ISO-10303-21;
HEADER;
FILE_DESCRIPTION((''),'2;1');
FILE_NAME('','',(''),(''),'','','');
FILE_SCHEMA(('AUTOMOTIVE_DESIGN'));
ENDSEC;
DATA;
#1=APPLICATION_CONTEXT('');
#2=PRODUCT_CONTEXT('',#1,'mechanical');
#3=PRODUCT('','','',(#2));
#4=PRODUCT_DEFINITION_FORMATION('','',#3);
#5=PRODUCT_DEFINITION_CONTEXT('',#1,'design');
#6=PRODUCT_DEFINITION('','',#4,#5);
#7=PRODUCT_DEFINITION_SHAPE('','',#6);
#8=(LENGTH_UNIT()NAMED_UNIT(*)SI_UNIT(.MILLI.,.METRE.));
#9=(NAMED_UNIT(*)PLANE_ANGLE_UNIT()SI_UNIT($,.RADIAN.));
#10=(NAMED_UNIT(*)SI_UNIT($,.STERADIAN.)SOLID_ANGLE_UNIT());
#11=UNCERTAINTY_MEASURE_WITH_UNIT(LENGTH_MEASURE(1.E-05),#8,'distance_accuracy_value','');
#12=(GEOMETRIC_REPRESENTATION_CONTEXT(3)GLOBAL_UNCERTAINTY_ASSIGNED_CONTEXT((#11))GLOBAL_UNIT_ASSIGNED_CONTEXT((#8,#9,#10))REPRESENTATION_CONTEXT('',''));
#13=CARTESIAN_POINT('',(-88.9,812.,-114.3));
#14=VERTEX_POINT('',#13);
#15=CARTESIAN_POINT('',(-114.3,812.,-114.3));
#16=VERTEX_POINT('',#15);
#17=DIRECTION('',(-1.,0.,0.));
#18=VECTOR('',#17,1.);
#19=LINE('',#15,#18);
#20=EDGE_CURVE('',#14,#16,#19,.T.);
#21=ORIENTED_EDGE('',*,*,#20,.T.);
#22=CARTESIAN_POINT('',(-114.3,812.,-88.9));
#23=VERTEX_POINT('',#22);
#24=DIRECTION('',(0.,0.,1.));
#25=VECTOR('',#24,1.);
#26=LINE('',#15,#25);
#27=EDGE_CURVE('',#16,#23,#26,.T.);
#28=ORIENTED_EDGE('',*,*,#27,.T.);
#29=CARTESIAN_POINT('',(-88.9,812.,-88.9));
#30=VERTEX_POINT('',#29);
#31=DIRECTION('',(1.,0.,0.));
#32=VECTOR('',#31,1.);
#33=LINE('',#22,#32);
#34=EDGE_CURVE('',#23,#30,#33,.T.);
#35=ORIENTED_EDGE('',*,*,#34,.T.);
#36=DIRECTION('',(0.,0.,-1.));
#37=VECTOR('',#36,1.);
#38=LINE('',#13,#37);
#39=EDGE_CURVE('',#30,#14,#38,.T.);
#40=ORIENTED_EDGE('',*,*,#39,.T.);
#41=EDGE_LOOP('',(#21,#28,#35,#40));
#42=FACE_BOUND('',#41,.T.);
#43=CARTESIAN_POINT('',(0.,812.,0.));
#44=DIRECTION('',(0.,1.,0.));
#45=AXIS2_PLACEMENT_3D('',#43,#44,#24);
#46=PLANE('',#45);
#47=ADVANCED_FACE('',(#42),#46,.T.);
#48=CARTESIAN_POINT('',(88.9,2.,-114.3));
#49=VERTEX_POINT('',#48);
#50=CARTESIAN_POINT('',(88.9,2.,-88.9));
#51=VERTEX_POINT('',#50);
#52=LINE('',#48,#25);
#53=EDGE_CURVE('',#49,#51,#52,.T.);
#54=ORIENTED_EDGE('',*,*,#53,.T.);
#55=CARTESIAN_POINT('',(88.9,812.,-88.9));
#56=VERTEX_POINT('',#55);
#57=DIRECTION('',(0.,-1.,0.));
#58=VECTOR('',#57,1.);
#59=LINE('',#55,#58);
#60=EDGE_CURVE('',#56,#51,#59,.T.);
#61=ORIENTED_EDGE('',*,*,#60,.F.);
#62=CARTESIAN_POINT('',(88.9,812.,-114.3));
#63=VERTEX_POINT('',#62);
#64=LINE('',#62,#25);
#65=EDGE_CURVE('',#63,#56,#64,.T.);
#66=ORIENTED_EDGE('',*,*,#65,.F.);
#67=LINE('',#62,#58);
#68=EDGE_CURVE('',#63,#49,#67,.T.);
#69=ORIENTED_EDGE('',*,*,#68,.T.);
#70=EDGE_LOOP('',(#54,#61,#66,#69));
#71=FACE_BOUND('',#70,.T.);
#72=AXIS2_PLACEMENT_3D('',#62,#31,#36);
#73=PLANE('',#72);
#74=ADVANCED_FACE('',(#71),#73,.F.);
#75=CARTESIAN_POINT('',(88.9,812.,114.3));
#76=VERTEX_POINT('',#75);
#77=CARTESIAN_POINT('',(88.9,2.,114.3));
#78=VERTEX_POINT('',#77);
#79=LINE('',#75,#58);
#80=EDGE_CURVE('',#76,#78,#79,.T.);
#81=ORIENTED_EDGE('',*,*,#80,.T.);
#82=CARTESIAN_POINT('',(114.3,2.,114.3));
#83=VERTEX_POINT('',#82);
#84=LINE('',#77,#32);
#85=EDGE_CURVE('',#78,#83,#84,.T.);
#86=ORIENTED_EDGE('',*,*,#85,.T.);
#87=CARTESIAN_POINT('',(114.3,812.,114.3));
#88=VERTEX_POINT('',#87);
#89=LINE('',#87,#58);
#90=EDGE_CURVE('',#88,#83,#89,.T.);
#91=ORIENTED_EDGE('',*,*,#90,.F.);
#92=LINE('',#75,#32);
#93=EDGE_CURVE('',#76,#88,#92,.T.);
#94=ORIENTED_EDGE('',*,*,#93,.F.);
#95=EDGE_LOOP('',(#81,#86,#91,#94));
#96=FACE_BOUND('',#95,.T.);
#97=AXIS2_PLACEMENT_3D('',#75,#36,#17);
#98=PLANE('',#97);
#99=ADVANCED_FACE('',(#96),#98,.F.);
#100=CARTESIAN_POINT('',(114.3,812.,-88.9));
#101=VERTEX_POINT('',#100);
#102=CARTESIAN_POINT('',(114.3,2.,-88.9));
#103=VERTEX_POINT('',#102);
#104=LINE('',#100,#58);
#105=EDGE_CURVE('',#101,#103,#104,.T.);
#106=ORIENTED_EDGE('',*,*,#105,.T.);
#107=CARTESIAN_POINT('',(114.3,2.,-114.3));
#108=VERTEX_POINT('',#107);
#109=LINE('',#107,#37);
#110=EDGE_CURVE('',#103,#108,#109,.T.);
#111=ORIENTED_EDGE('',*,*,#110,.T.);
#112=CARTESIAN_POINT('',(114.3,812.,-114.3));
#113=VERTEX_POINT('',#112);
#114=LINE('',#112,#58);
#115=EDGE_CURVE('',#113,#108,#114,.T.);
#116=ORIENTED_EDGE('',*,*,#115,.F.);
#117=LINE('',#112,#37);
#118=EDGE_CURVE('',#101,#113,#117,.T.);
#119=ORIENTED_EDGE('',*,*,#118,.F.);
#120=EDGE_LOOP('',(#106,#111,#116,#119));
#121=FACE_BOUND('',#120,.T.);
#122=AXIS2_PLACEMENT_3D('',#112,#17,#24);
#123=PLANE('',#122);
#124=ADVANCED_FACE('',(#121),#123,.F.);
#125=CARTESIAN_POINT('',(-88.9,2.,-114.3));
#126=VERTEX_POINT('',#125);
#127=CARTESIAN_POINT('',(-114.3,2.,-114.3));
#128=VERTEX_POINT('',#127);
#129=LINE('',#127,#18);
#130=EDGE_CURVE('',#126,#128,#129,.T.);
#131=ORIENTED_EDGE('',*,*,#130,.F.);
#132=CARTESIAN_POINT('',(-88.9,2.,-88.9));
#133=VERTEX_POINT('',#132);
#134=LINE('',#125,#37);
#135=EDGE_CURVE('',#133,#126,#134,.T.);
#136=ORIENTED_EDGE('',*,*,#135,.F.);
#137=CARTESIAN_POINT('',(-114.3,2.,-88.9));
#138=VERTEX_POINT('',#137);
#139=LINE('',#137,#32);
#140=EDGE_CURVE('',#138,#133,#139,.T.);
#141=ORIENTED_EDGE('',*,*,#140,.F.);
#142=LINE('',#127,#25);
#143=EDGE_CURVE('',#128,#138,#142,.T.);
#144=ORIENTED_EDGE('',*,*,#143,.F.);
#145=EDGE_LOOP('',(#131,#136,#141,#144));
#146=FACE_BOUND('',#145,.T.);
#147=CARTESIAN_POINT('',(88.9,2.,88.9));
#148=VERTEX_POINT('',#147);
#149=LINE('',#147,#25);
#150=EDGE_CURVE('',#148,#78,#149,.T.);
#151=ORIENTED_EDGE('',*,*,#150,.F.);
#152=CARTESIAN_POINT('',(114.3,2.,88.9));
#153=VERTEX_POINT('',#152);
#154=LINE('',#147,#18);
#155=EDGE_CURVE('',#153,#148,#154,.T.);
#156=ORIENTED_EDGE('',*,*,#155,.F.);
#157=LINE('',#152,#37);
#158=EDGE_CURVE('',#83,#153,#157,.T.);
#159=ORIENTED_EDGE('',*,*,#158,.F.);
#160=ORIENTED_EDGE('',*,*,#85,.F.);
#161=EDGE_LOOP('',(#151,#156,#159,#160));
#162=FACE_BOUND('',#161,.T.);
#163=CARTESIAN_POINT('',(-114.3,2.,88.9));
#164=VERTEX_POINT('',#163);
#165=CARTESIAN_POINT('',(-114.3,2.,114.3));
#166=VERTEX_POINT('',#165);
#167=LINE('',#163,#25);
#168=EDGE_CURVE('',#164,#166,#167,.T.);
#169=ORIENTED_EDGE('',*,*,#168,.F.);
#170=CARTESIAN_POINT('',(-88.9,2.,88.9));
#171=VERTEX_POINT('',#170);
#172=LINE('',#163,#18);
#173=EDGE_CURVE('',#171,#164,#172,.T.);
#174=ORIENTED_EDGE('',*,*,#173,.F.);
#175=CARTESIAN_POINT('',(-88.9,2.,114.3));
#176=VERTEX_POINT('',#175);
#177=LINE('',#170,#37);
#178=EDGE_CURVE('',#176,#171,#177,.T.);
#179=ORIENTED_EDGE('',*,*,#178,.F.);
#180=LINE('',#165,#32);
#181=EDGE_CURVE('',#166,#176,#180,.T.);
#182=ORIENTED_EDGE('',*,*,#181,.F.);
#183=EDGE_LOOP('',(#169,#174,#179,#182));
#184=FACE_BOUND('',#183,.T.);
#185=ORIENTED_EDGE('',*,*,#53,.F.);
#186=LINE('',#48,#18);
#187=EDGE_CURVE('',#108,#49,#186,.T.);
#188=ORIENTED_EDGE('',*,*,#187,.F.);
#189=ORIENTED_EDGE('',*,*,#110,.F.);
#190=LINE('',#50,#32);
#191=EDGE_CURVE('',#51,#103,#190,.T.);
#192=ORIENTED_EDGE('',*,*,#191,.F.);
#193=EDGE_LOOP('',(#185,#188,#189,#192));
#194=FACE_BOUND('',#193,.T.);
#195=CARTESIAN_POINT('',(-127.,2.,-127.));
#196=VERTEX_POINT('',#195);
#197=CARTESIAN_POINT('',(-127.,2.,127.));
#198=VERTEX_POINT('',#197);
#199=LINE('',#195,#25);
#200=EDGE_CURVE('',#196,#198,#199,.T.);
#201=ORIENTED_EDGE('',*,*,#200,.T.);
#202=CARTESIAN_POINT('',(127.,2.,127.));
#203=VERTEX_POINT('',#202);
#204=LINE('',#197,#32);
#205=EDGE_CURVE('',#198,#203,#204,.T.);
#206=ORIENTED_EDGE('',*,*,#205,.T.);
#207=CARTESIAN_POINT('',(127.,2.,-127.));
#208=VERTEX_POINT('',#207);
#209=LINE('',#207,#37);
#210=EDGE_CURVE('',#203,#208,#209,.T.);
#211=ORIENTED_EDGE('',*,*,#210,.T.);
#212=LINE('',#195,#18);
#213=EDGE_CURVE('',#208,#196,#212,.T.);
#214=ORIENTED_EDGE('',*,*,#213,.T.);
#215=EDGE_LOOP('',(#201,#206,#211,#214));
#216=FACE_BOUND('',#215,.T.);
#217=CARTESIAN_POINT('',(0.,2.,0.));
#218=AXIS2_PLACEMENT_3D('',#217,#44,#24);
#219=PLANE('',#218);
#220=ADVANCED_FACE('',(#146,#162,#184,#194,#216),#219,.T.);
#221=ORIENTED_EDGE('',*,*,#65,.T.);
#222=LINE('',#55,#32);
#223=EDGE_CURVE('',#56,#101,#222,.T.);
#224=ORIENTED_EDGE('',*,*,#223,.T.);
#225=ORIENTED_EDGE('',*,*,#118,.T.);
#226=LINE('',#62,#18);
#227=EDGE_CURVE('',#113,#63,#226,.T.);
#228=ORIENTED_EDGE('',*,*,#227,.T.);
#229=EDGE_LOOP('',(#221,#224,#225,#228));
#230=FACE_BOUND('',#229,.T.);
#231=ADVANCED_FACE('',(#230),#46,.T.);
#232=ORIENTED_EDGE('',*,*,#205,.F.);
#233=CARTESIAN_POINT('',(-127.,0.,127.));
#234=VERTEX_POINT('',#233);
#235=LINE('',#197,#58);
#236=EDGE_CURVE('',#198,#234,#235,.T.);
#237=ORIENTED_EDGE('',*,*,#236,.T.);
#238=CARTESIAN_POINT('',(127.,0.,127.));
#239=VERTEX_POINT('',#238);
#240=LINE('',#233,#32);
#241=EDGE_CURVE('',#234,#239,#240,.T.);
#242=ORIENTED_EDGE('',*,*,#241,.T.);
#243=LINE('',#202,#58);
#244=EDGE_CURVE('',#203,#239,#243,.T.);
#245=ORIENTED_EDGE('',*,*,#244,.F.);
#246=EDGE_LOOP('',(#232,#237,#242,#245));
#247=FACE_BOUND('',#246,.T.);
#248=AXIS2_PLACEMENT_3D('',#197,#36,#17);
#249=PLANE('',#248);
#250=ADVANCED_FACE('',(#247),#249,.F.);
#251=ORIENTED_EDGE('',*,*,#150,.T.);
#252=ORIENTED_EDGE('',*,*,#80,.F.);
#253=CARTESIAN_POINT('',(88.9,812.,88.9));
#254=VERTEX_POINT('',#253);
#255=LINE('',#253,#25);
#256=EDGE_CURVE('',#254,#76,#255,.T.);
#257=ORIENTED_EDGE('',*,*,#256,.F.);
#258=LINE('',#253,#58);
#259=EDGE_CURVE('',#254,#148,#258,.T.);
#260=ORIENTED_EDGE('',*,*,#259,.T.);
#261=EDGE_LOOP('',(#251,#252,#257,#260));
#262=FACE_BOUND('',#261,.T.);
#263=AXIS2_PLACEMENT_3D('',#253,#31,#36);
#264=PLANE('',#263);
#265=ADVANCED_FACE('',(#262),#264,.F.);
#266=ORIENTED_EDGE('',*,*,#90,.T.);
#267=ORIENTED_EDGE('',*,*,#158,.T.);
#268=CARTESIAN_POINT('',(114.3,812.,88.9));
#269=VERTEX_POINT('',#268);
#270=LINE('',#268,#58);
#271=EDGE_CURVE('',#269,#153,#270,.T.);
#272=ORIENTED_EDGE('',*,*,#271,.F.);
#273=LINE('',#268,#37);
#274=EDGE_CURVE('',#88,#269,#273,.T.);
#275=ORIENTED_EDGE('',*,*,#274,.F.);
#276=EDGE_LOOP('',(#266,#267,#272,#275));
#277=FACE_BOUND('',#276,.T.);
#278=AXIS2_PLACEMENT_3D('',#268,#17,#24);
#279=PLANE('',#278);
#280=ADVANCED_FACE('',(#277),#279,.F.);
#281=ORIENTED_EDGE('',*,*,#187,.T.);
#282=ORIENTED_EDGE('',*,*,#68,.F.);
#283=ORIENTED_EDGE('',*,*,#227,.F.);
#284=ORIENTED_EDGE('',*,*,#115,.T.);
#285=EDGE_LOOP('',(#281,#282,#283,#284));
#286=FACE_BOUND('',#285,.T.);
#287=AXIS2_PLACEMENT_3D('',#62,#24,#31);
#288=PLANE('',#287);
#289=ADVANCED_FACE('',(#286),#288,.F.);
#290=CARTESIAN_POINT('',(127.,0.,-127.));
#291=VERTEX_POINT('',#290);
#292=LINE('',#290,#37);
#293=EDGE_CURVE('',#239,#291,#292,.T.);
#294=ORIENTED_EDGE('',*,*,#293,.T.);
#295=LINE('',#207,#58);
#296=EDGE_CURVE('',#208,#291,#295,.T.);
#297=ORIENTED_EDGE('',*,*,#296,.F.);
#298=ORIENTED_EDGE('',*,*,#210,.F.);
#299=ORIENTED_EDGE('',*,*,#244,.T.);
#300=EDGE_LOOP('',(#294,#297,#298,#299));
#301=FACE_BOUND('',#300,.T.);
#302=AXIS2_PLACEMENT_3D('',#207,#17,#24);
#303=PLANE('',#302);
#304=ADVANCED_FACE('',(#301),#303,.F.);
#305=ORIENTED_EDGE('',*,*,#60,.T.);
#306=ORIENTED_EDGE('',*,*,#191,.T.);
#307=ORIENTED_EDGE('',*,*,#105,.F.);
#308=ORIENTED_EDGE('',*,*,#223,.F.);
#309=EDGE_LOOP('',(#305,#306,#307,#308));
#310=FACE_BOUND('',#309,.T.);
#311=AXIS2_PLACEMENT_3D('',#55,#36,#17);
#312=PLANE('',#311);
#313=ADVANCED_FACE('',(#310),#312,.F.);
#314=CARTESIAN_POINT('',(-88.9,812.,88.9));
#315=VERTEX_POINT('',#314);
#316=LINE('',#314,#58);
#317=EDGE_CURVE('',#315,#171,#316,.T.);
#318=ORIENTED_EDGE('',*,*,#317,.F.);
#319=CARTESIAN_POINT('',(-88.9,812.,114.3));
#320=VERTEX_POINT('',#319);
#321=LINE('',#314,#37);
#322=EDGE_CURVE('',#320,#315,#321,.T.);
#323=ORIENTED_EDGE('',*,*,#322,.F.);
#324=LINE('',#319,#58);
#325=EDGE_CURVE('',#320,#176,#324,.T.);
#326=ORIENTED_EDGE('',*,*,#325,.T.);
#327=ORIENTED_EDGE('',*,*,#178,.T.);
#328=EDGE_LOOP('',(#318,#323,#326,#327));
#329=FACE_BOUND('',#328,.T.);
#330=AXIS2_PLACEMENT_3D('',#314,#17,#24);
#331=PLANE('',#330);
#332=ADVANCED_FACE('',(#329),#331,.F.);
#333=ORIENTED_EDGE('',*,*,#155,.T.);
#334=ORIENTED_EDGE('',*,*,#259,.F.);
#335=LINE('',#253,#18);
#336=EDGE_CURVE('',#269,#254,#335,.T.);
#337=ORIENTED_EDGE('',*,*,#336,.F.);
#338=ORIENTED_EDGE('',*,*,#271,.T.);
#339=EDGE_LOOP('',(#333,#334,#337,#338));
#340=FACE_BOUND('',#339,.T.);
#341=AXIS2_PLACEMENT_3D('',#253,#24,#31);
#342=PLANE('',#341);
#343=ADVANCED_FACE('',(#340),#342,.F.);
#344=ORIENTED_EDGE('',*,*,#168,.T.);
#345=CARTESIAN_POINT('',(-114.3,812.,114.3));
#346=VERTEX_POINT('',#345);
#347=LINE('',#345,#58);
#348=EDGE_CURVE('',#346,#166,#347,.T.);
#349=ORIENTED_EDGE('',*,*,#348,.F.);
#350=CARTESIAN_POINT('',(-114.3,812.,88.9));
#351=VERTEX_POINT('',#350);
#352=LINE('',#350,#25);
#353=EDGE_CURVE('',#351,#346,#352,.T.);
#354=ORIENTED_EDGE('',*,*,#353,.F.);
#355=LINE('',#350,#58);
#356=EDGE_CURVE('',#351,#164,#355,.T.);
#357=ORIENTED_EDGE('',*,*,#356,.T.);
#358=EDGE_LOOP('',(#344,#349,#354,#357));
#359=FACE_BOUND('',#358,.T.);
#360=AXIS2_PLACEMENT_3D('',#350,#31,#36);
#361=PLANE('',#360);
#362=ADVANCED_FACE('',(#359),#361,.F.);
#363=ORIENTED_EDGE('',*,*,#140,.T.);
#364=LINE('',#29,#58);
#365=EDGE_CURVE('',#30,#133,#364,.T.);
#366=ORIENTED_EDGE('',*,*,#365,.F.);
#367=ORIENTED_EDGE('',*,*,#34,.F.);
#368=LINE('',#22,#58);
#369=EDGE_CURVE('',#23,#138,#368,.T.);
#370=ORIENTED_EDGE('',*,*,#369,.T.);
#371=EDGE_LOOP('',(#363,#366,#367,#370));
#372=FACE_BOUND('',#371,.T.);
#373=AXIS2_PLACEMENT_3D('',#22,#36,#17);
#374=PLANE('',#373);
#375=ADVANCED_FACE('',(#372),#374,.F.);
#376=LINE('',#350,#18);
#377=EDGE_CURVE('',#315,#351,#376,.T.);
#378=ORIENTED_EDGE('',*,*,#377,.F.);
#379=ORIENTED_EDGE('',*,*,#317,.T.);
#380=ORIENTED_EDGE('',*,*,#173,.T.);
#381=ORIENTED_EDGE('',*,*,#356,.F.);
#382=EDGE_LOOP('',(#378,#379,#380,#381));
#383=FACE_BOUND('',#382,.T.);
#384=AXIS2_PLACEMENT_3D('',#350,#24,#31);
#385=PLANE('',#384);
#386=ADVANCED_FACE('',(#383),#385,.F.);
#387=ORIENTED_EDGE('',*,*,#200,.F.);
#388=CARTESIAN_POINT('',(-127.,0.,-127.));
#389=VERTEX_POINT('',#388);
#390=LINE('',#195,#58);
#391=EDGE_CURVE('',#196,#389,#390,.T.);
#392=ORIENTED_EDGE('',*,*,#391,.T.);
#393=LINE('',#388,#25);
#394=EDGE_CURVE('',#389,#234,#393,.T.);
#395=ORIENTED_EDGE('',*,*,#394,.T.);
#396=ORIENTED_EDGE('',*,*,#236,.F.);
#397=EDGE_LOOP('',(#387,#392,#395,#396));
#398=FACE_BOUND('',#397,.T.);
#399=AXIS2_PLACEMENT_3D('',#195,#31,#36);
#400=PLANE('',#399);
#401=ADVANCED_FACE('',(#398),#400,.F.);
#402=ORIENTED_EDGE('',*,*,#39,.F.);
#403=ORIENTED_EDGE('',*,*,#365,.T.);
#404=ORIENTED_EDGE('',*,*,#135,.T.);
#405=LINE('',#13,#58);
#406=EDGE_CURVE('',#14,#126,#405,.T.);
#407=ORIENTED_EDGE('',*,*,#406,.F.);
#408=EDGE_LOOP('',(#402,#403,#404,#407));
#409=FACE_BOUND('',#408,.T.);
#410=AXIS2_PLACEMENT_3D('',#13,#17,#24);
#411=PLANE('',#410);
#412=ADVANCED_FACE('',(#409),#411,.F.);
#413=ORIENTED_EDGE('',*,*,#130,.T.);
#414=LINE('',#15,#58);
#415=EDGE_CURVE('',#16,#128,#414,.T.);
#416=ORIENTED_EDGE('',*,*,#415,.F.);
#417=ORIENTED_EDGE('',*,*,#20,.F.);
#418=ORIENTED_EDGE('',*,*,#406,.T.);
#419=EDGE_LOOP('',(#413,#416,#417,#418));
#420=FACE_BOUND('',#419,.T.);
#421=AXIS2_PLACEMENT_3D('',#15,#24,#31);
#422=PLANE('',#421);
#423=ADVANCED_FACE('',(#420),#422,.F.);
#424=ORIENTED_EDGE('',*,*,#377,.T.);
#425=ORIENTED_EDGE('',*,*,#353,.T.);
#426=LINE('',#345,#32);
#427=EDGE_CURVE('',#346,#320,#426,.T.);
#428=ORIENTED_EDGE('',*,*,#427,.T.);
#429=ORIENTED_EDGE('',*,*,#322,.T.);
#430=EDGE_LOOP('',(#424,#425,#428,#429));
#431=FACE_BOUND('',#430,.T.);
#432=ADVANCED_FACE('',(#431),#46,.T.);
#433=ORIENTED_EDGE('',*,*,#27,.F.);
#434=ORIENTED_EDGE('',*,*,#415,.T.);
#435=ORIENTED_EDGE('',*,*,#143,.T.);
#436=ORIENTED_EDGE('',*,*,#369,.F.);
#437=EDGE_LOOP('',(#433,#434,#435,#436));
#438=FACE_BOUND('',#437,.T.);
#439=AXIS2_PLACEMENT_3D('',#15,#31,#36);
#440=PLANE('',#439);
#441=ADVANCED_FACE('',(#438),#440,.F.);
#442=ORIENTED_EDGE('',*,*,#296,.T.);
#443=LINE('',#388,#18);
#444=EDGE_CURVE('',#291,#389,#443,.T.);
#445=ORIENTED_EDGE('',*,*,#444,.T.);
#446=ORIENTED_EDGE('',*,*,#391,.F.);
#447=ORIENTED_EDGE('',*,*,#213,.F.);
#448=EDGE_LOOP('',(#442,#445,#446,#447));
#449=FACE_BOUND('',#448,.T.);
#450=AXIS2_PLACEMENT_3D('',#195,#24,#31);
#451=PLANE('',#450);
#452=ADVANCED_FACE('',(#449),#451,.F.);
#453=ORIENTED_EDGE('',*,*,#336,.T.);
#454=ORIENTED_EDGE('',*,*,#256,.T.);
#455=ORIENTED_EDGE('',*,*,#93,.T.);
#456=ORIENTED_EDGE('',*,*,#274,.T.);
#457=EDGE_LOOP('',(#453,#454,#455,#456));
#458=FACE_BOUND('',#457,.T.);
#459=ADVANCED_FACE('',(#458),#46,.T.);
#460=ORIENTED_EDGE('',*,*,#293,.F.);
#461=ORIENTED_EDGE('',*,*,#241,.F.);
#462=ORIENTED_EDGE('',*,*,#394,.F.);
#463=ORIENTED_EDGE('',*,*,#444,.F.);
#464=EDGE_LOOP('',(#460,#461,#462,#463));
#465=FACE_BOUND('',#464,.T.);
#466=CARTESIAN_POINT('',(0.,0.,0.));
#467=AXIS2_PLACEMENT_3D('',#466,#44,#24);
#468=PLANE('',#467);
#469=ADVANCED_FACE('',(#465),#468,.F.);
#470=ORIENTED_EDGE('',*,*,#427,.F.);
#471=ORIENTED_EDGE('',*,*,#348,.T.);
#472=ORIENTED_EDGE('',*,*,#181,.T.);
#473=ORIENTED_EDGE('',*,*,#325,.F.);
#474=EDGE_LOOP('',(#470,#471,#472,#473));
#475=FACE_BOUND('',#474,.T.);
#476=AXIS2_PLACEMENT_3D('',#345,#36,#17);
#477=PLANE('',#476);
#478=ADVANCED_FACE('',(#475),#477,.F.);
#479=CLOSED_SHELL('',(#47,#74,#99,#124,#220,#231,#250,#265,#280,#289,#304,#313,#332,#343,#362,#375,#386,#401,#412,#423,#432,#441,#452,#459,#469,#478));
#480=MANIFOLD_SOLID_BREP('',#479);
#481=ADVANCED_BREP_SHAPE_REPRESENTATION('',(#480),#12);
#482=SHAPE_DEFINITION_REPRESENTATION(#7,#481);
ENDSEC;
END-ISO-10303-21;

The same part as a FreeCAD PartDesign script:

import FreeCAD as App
import Part
import Sketcher

V = App.Vector
Q = App.Units.Quantity


def add_polygon(sketch, points):
    """Adds a closed chain of lines whose ends are joined by coincident constraints."""
    first, n = sketch.GeometryCount, len(points)
    for a, b in zip(points, points[1:] + points[:1]):
        sketch.addGeometry(Part.LineSegment(App.Vector(*a, 0), App.Vector(*b, 0)), False)
    for i in range(n):
        sketch.addConstraint(Sketcher.Constraint("Coincident", first + i, 2, first + (i + 1) % n, 1))

doc = App.newDocument("Part")
params = doc.addObject("Spreadsheet::Sheet", "Params")
for row, (alias, value) in enumerate([
    ("sketch1_width", "254 mm"),
    ("pad1_length", "2 mm"),
    ("sketch2_width", "25.4 mm"),
    ("pad2_length", "810 mm"),
], start=1):
    params.set(f"A{row}", alias)
    params.set(f"B{row}", "=" + value)
    params.setAlias(f"B{row}", alias)

body = doc.addObject("PartDesign::Body", "Body")

sketch1 = body.newObject("Sketcher::SketchObject", "Sketch")
sketch1.AttachmentSupport = (doc.getObject("XZ_Plane"), [""])
sketch1.MapMode = "FlatFace"
add_polygon(sketch1, [(-127, -127), (-127, 127), (127, 127), (127, -127)])
sketch1.addConstraint([
    Sketcher.Constraint("Vertical", 0),
    Sketcher.Constraint("Horizontal", 1),
    Sketcher.Constraint("Vertical", 2),
    Sketcher.Constraint("Horizontal", 3),
    Sketcher.Constraint("Symmetric", 0, 2, 2, 2, -1, 1),
    Sketcher.Constraint("Equal", 3, 0),
    Sketcher.Constraint("DistanceX", 1, 1, 1, 2, Q("254 mm")),
])
sketch1.setExpression("Constraints[10]", "Params.sketch1_width")
pad1 = body.newObject("PartDesign::Pad", "Pad")
pad1.Profile = sketch1
pad1.setExpression("Length", "Params.pad1_length")
pad1.Reversed = True

sketch2 = body.newObject("Sketcher::SketchObject", "Sketch001")
sketch2.AttachmentSupport = (doc.getObject("XZ_Plane"), [""])
sketch2.MapMode = "FlatFace"
sketch2.AttachmentOffset = App.Placement(V(0, 0, -2), App.Rotation())
add_polygon(sketch2, [(-114.3, -114.3), (-114.3, -88.9), (-88.9, -88.9), (-88.9, -114.3)])
add_polygon(sketch2, [(-114.3, 88.9), (-114.3, 114.3), (-88.9, 114.3), (-88.9, 88.9)])
add_polygon(sketch2, [(88.9, 88.9), (88.9, 114.3), (114.3, 114.3), (114.3, 88.9)])
add_polygon(sketch2, [(88.9, -114.3), (88.9, -88.9), (114.3, -88.9), (114.3, -114.3)])
sketch2.addConstraint([
    Sketcher.Constraint("Vertical", 0),
    Sketcher.Constraint("Horizontal", 1),
    Sketcher.Constraint("Vertical", 2),
    Sketcher.Constraint("Horizontal", 3),
    Sketcher.Constraint("Vertical", 4),
    Sketcher.Constraint("Horizontal", 5),
    Sketcher.Constraint("Vertical", 6),
    Sketcher.Constraint("Horizontal", 7),
    Sketcher.Constraint("Vertical", 8),
    Sketcher.Constraint("Horizontal", 9),
    Sketcher.Constraint("Vertical", 10),
    Sketcher.Constraint("Horizontal", 11),
    Sketcher.Constraint("Vertical", 12),
    Sketcher.Constraint("Horizontal", 13),
    Sketcher.Constraint("Vertical", 14),
    Sketcher.Constraint("Horizontal", 15),
    Sketcher.Constraint("Symmetric", 2, 2, 8, 2, -1, 1),
    Sketcher.Constraint("Symmetric", 0, 2, 10, 2, -1, 1),
    Sketcher.Constraint("Symmetric", 6, 2, 12, 2, -1, 1),
    Sketcher.Constraint("Symmetric", 4, 2, 14, 2, -1, 1),
    Sketcher.Constraint("Symmetric", 5, 2, 8, 2, -2),
    Sketcher.Constraint("Symmetric", 7, 2, 10, 2, -2),
    Sketcher.Constraint("Equal", 15, 0),
    Sketcher.Constraint("DistanceX", 1, 1, 1, 2, Q("25.4 mm")),
    Sketcher.Constraint("DistanceX", 0, 2, -1, 1, Q("114.3 mm")),
    Sketcher.Constraint("DistanceY", 0, 2, -1, 1, Q("88.9 mm")),
])
sketch2.setExpression("Constraints[39]", "Params.sketch2_width")
pad2 = body.newObject("PartDesign::Pad", "Pad001")
pad2.Profile = sketch2
pad2.setExpression("Length", "Params.pad2_length")
pad2.Reversed = True

doc.recompute()
